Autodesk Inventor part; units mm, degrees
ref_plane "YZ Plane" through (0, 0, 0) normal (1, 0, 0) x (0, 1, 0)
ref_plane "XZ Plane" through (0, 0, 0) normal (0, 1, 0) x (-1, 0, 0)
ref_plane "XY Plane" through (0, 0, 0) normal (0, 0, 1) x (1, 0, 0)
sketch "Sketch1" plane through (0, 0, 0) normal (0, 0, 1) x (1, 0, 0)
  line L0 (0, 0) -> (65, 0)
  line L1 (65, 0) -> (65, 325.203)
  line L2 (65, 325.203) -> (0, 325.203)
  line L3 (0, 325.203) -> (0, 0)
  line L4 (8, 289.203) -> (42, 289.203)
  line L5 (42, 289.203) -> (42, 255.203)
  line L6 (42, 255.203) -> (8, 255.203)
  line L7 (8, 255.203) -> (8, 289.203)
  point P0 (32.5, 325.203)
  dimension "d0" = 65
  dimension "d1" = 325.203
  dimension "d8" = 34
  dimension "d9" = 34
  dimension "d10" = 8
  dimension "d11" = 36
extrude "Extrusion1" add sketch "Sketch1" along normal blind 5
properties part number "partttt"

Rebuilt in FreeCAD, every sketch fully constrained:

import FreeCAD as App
import Part
import Sketcher
from FreeCAD import Vector


def add_polygon(sketch, points):
    """Adds a closed chain of lines whose ends are joined by coincident constraints."""
    first, n = sketch.GeometryCount, len(points)
    for a, b in zip(points, points[1:] + points[:1]):
        sketch.addGeometry(Part.LineSegment(App.Vector(*a, 0), App.Vector(*b, 0)), False)
    for i in range(n):
        sketch.addConstraint(Sketcher.Constraint("Coincident", first + i, 2, first + (i + 1) % n, 1))

doc = App.newDocument("Part")
body = doc.addObject("PartDesign::Body", "Body")

# Sketch on XY plane
sketch1 = body.newObject("Sketcher::SketchObject", "Sketch")
sketch1.AttachmentSupport = (doc.getObject("XY_Plane"), [""])
sketch1.MapMode = "FlatFace"
add_polygon(sketch1, [(0, 325.203), (0, 0), (65, 0), (65, 325.203)])  # lines 0-3
add_polygon(sketch1, [(8, 255.203), (8, 289.203), (42, 289.203), (42, 255.203)])  # lines 4-7
sketch1.addConstraint([
    Sketcher.Constraint("Vertical", 0),
    Sketcher.Constraint("Horizontal", 1),
    Sketcher.Constraint("Vertical", 2),
    Sketcher.Constraint("Horizontal", 3),
    Sketcher.Constraint("Vertical", 4),
    Sketcher.Constraint("Horizontal", 5),
    Sketcher.Constraint("Vertical", 6),
    Sketcher.Constraint("Horizontal", 7),
    Sketcher.Constraint("Coincident", 0, 2, -1, 1),
    Sketcher.Constraint("Equal", 7, 4),
    Sketcher.Constraint("DistanceX", 1, 1, 1, 2, 65.0),
    Sketcher.Constraint("DistanceX", 5, 1, 5, 2, 34.0),
    Sketcher.Constraint("DistanceX", -1, 1, 4, 2, 8.0),
    Sketcher.Constraint("DistanceY", 4, 2, 3, 2, 36.0),
    Sketcher.Constraint("DistanceY", 0, 2, 0, 1, 325.203),
])
pad1 = body.newObject("PartDesign::Pad", "Pad")
pad1.Profile = sketch1
pad1.Length = 5

doc.recompute()
